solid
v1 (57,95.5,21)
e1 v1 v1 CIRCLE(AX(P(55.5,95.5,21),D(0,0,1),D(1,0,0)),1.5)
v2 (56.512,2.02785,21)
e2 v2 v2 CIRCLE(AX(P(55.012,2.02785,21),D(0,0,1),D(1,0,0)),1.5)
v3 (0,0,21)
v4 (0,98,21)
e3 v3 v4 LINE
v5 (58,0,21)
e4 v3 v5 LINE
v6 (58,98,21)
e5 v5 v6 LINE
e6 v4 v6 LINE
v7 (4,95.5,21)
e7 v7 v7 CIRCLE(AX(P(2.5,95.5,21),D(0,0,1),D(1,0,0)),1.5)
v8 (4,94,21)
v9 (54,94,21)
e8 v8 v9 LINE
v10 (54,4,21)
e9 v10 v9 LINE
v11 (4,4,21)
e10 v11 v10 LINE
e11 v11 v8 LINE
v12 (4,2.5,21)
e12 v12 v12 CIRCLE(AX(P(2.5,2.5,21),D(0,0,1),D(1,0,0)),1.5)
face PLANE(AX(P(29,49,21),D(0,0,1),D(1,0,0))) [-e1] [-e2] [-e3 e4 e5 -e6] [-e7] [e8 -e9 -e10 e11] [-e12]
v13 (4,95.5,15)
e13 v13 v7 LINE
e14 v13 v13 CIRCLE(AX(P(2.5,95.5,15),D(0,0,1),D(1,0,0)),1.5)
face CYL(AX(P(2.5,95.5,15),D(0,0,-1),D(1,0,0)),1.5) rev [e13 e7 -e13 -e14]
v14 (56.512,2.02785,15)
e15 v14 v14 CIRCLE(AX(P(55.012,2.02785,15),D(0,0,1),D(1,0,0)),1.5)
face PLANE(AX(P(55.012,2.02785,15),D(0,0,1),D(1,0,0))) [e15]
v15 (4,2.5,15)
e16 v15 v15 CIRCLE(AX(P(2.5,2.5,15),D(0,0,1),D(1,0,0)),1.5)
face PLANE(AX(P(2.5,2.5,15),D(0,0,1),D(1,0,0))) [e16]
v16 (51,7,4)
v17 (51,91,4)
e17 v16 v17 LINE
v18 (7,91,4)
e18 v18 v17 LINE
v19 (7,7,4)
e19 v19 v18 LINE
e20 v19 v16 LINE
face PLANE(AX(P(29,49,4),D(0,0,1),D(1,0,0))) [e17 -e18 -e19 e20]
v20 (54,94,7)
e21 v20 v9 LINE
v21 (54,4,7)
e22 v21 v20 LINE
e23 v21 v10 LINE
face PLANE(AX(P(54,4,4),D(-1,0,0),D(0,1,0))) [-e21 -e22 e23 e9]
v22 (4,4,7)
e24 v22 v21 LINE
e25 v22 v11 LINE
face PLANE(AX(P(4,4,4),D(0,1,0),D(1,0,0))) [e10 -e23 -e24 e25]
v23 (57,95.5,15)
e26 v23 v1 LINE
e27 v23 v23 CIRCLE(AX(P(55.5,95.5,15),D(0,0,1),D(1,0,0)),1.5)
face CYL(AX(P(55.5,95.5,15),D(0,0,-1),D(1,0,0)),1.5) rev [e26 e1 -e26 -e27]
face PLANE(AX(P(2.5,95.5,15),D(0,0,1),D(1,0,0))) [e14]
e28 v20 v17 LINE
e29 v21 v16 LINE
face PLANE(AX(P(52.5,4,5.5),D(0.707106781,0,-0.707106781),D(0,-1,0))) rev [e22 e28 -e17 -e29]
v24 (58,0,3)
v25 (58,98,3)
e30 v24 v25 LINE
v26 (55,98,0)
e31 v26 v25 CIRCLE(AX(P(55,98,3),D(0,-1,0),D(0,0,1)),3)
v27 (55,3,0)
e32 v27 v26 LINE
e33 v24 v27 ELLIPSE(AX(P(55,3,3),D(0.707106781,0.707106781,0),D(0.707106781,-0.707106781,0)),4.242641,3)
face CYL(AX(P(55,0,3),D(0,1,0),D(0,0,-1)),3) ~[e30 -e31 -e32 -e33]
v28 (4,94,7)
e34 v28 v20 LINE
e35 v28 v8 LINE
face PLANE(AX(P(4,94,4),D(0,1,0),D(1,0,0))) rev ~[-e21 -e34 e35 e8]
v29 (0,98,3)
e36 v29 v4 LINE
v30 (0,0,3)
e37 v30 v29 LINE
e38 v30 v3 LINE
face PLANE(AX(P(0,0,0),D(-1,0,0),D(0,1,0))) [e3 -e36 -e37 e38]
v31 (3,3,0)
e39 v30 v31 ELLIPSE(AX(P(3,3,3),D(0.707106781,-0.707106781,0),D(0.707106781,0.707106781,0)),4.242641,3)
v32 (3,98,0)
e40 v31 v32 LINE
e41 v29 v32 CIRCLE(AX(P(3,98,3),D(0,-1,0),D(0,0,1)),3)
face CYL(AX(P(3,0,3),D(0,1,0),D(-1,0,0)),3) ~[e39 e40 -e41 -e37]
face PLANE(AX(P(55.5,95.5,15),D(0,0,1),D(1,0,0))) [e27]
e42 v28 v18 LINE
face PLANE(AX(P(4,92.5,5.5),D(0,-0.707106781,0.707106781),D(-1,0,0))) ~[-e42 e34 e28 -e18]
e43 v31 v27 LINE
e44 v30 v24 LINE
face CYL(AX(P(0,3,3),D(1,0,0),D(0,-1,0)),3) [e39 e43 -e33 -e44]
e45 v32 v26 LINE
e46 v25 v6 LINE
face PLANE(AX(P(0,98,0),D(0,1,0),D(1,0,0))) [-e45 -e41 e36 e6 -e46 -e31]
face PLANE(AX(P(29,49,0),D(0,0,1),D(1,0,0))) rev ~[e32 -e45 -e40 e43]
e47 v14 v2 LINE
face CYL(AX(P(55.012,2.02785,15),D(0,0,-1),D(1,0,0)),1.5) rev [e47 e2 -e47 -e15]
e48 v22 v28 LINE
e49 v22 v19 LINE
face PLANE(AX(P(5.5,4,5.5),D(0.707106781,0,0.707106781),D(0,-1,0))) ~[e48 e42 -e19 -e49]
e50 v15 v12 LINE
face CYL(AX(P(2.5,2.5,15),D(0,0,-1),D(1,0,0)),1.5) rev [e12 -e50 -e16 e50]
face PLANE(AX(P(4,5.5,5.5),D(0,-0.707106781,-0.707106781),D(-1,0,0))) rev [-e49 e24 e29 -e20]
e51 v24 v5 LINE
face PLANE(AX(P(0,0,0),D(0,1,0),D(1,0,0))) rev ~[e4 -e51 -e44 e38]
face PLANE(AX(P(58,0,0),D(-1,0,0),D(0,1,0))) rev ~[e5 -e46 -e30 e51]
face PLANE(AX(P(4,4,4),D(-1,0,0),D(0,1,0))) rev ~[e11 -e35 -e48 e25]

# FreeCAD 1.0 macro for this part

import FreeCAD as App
import Part
import Sketcher
Q = App.Units.Quantity


def edges_at(feature, points):
    """Names of the edges that pass closest to the given points."""
    edges = feature.Shape.Edges
    near = lambda p: min(range(len(edges)), key=lambda i: edges[i].distToShape(Part.Vertex(*p))[0])
    return sorted({f"Edge{near(p) + 1}" for p in points})


def add_polygon(sketch, points):
    """Adds a closed chain of lines whose ends are joined by coincident constraints."""
    first, n = sketch.GeometryCount, len(points)
    for a, b in zip(points, points[1:] + points[:1]):
        sketch.addGeometry(Part.LineSegment(App.Vector(*a, 0), App.Vector(*b, 0)), False)
    for i in range(n):
        sketch.addConstraint(Sketcher.Constraint("Coincident", first + i, 2, first + (i + 1) % n, 1))

doc = App.newDocument("Part")
params = doc.addObject("Spreadsheet::Sheet", "Params")
for row, (alias, value) in enumerate([
    ("sketch1_diameter", "3 mm"),
    ("pad1_length", "6 mm"),
    ("sketch2_diameter", "3 mm"),
    ("pad2_length", "6 mm"),
    ("sketch3_diameter", "3 mm"),
    ("pad3_length", "6 mm"),
    ("sketch4_diameter", "3 mm"),
    ("pad4_length", "6 mm"),
    ("sketch5_width", "50 mm"),
    ("sketch5_height", "90 mm"),
    ("pad5_length", "17 mm"),
    ("chamfer_size", "3 mm"),
    ("sketch6_width", "58 mm"),
    ("sketch6_height", "98 mm"),
    ("pad6_length", "21 mm"),
    ("fillet_radius", "3 mm"),
], start=1):
    params.set(f"A{row}", alias)
    params.set(f"B{row}", "=" + value)
    params.setAlias(f"B{row}", alias)

body = doc.addObject("PartDesign::Body", "Body")

sketch1 = body.newObject("Sketcher::SketchObject", "Sketch")
sketch1.AttachmentSupport = (doc.getObject("XY_Plane"), [""])
sketch1.MapMode = "FlatFace"
sketch1.AttachmentOffset = App.Placement(App.Vector(0, 0, 15), App.Rotation())
sketch1.addGeometry(Part.Circle(App.Vector(55.5, 95.5, 0), App.Vector(0, 0, 1), 1.5), False)
sketch1.addConstraint(Sketcher.Constraint("Diameter", 0, Q("3 mm")))
sketch1.addConstraint(Sketcher.Constraint("DistanceX", -1, 1, 0, 3, Q("55.5 mm")))
sketch1.addConstraint(Sketcher.Constraint("DistanceY", -1, 1, 0, 3, Q("95.5 mm")))
sketch1.setExpression("Constraints[0]", "Params.sketch1_diameter")
pad1 = body.newObject("PartDesign::Pad", "Pad")
pad1.Profile = sketch1
pad1.setExpression("Length", "Params.pad1_length")
body2 = doc.addObject("PartDesign::Body", "Body001")

sketch2 = body2.newObject("Sketcher::SketchObject", "Sketch001")
sketch2.AttachmentSupport = (doc.getObject("XY_Plane001"), [""])
sketch2.MapMode = "FlatFace"
sketch2.AttachmentOffset = App.Placement(App.Vector(0, 0, 15), App.Rotation())
sketch2.addGeometry(Part.Circle(App.Vector(55, 2, 0), App.Vector(0, 0, 1), 1.5), False)
sketch2.addConstraint(Sketcher.Constraint("Diameter", 0, Q("3 mm")))
sketch2.addConstraint(Sketcher.Constraint("DistanceX", -1, 1, 0, 3, Q("55.012 mm")))
sketch2.addConstraint(Sketcher.Constraint("DistanceY", -1, 1, 0, 3, Q("2.02785 mm")))
sketch2.setExpression("Constraints[0]", "Params.sketch2_diameter")
pad2 = body2.newObject("PartDesign::Pad", "Pad001")
pad2.Profile = sketch2
pad2.setExpression("Length", "Params.pad2_length")
body3 = doc.addObject("PartDesign::Body", "Body002")

sketch3 = body3.newObject("Sketcher::SketchObject", "Sketch002")
sketch3.AttachmentSupport = (doc.getObject("XY_Plane002"), [""])
sketch3.MapMode = "FlatFace"
sketch3.AttachmentOffset = App.Placement(App.Vector(0, 0, 15), App.Rotation())
sketch3.addGeometry(Part.Circle(App.Vector(2.5, 95.5, 0), App.Vector(0, 0, 1), 1.5), False)
sketch3.addConstraint(Sketcher.Constraint("Diameter", 0, Q("3 mm")))
sketch3.addConstraint(Sketcher.Constraint("DistanceX", -1, 1, 0, 3, Q("2.5 mm")))
sketch3.addConstraint(Sketcher.Constraint("DistanceY", -1, 1, 0, 3, Q("95.5 mm")))
sketch3.setExpression("Constraints[0]", "Params.sketch3_diameter")
pad3 = body3.newObject("PartDesign::Pad", "Pad002")
pad3.Profile = sketch3
pad3.setExpression("Length", "Params.pad3_length")
body4 = doc.addObject("PartDesign::Body", "Body003")

sketch4 = body4.newObject("Sketcher::SketchObject", "Sketch003")
sketch4.AttachmentSupport = (doc.getObject("XY_Plane003"), [""])
sketch4.MapMode = "FlatFace"
sketch4.AttachmentOffset = App.Placement(App.Vector(0, 0, 15), App.Rotation())
sketch4.addGeometry(Part.Circle(App.Vector(2.5, 2.5, 0), App.Vector(0, 0, 1), 1.5), False)
sketch4.addConstraint(Sketcher.Constraint("Diameter", 0, Q("3 mm")))
sketch4.addConstraint(Sketcher.Constraint("DistanceX", -1, 1, 0, 3, Q("2.5 mm")))
sketch4.addConstraint(Sketcher.Constraint("DistanceY", -1, 1, 0, 3, Q("2.5 mm")))
sketch4.setExpression("Constraints[0]", "Params.sketch4_diameter")
pad4 = body4.newObject("PartDesign::Pad", "Pad003")
pad4.Profile = sketch4
pad4.setExpression("Length", "Params.pad4_length")
body5 = doc.addObject("PartDesign::Body", "Body004")

sketch5 = body5.newObject("Sketcher::SketchObject", "Sketch004")
sketch5.AttachmentSupport = (doc.getObject("XY_Plane004"), [""])
sketch5.MapMode = "FlatFace"
sketch5.AttachmentOffset = App.Placement(App.Vector(0, 0, 4), App.Rotation())
add_polygon(sketch5, [(4, 94), (4, 4), (54, 4), (54, 94)])
sketch5.addConstraint(Sketcher.Constraint("Vertical", 0))
sketch5.addConstraint(Sketcher.Constraint("Horizontal", 1))
sketch5.addConstraint(Sketcher.Constraint("Vertical", 2))
sketch5.addConstraint(Sketcher.Constraint("Horizontal", 3))
sketch5.addConstraint(Sketcher.Constraint("DistanceX", 1, 1, 1, 2, Q("50 mm")))
sketch5.addConstraint(Sketcher.Constraint("DistanceY", 0, 2, 0, 1, Q("90 mm")))
sketch5.addConstraint(Sketcher.Constraint("DistanceX", -1, 1, 0, 2, Q("4 mm")))
sketch5.addConstraint(Sketcher.Constraint("DistanceY", -1, 1, 0, 2, Q("4 mm")))
sketch5.setExpression("Constraints[8]", "Params.sketch5_width")
sketch5.setExpression("Constraints[9]", "Params.sketch5_height")
pad5 = body5.newObject("PartDesign::Pad", "Pad004")
pad5.Profile = sketch5
pad5.setExpression("Length", "Params.pad5_length")
doc.recompute()

chamfer = body5.newObject("PartDesign::Chamfer", "Chamfer")
chamfer.Base = (pad5, edges_at(pad5, [
    (4, 49, 4),
    (54, 49, 4),
    (29, 4, 4),
    (29, 94, 4),
]))
chamfer.setExpression("Size", "Params.chamfer_size")
body6 = doc.addObject("PartDesign::Body", "Body005")

sketch6 = body6.newObject("Sketcher::SketchObject", "Sketch005")
sketch6.AttachmentSupport = (doc.getObject("XY_Plane005"), [""])
sketch6.MapMode = "FlatFace"
add_polygon(sketch6, [(0, 98), (0, 0), (58, 0), (58, 98)])
sketch6.addConstraint(Sketcher.Constraint("Vertical", 0))
sketch6.addConstraint(Sketcher.Constraint("Horizontal", 1))
sketch6.addConstraint(Sketcher.Constraint("Vertical", 2))
sketch6.addConstraint(Sketcher.Constraint("Horizontal", 3))
sketch6.addConstraint(Sketcher.Constraint("Coincident", 0, 2, -1, 1))
sketch6.addConstraint(Sketcher.Constraint("DistanceX", 1, 1, 1, 2, Q("58 mm")))
sketch6.addConstraint(Sketcher.Constraint("DistanceY", 0, 2, 0, 1, Q("98 mm")))
sketch6.setExpression("Constraints[9]", "Params.sketch6_width")
sketch6.setExpression("Constraints[10]", "Params.sketch6_height")
pad6 = body6.newObject("PartDesign::Pad", "Pad005")
pad6.Profile = sketch6
pad6.setExpression("Length", "Params.pad6_length")
doc.recompute()

boolean = body6.newObject("PartDesign::Boolean", "Boolean")
boolean.Type = "Cut"
boolean.addObjects([body5])
doc.recompute()

fillet = body6.newObject("PartDesign::Fillet", "Fillet")
fillet.Base = (boolean, edges_at(boolean, [(0, 49, 0), (29, 0, 0), (58, 49, 0)]))
fillet.setExpression("Radius", "Params.fillet_radius")
doc.recompute()

boolean2 = body6.newObject("PartDesign::Boolean", "Boolean001")
boolean2.Type = "Cut"
boolean2.addObjects([body4])
doc.recompute()

boolean3 = body6.newObject("PartDesign::Boolean", "Boolean002")
boolean3.Type = "Cut"
boolean3.addObjects([body3])
doc.recompute()

boolean4 = body6.newObject("PartDesign::Boolean", "Boolean003")
boolean4.Type = "Cut"
boolean4.addObjects([body2])
doc.recompute()

boolean5 = body6.newObject("PartDesign::Boolean", "Boolean004")
boolean5.Type = "Cut"
boolean5.addObjects([body])

doc.recompute()
